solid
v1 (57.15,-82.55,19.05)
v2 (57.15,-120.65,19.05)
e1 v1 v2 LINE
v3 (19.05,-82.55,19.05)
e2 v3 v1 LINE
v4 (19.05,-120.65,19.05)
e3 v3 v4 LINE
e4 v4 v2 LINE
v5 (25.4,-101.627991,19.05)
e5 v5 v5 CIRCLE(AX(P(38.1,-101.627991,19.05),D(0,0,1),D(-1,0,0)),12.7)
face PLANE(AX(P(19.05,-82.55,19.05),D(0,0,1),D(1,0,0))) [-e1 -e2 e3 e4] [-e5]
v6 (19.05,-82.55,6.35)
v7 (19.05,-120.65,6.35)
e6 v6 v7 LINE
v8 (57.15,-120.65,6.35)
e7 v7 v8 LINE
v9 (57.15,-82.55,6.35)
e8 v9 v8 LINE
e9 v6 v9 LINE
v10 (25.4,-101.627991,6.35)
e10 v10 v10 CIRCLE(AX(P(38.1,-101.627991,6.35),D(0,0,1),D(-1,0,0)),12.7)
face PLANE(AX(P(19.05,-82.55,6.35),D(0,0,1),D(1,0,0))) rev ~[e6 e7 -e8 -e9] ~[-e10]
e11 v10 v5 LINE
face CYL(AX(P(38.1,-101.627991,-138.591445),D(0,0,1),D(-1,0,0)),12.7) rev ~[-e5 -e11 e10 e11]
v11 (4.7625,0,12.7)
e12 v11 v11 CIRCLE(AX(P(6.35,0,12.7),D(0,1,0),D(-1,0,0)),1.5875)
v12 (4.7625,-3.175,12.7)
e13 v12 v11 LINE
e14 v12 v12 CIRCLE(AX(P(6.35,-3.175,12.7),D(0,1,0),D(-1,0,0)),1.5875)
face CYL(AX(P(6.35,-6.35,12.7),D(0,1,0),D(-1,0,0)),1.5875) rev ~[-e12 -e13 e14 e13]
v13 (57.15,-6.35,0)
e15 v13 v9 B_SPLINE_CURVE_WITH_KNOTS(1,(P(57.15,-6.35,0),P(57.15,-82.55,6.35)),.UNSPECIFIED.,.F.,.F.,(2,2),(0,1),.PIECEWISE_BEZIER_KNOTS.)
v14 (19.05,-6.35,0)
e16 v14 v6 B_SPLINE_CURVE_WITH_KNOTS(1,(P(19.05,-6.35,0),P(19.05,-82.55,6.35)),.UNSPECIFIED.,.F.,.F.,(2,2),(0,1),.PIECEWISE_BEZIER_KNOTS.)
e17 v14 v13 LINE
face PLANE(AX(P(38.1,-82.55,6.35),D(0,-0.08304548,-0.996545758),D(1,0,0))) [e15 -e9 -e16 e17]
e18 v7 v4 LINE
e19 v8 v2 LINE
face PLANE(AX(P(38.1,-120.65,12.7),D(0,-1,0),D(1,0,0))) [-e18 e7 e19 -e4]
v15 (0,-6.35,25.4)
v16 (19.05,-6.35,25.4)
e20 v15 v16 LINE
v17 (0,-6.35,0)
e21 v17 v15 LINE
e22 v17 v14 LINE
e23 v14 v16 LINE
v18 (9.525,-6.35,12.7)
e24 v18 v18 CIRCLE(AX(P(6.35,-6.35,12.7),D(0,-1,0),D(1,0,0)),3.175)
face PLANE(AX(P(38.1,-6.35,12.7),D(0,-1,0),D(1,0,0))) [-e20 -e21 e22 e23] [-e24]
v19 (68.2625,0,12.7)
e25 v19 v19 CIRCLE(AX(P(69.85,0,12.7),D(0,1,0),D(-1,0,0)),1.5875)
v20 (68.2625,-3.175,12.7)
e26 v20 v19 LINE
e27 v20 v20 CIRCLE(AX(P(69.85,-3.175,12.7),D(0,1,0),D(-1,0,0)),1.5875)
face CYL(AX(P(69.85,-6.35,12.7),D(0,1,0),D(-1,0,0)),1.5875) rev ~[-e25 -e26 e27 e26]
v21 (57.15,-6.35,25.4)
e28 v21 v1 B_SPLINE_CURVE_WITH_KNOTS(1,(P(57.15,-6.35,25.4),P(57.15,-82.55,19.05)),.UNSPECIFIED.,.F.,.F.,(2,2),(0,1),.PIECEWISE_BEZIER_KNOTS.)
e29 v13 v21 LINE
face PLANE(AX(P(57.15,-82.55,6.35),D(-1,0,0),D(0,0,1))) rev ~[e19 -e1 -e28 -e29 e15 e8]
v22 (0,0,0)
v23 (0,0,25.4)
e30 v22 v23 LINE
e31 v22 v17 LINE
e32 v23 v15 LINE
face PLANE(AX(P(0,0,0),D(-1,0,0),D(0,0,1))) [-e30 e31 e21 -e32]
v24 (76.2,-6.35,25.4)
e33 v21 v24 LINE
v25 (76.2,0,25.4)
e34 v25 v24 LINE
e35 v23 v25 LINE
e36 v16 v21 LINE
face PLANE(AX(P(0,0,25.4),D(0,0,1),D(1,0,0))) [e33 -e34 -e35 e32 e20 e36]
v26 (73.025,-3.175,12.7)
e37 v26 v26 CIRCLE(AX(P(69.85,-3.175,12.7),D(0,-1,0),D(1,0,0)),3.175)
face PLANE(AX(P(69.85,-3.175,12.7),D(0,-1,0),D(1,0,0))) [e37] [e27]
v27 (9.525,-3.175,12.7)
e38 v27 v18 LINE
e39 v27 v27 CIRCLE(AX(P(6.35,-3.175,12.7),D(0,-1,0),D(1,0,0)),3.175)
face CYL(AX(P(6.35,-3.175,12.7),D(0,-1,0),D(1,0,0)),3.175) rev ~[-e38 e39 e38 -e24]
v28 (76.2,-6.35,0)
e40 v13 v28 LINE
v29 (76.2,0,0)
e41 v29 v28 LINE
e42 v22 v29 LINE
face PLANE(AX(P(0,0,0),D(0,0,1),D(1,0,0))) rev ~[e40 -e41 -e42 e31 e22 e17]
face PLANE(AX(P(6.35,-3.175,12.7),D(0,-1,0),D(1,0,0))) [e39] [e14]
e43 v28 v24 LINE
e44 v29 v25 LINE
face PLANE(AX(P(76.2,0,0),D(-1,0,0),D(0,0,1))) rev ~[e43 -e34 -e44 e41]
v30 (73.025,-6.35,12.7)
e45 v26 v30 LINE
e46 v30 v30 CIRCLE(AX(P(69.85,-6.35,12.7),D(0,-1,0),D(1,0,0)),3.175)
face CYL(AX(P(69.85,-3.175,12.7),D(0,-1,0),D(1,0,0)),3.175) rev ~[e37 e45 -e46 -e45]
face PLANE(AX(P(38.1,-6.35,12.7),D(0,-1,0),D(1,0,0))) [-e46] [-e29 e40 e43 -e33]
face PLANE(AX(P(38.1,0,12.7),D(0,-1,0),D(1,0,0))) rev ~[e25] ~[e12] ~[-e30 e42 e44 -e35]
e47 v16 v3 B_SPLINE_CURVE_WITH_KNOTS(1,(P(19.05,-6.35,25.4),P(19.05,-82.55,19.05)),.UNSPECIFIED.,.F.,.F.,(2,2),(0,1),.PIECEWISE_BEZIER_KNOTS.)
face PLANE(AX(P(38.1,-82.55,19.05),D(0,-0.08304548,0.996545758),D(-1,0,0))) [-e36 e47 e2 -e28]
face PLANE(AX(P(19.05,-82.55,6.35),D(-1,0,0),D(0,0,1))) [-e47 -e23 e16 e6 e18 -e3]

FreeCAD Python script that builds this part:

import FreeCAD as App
import Part
import Sketcher
Q = App.Units.Quantity

doc = App.newDocument("Part")
body = doc.addObject("PartDesign::Body", "Body")

# Sketch on XZ plane
sketch1 = body.newObject("Sketcher::SketchObject", "Sketch")
sketch1.AttachmentSupport = (doc.getObject("XZ_Plane"), [""])
sketch1.MapMode = "FlatFace"
sketch1.addGeometry(Part.LineSegment(App.Vector(0, 25, 0), App.Vector(0, 0, 0)), False)
sketch1.addGeometry(Part.LineSegment(App.Vector(0, 0, 0), App.Vector(76, 0, 0)), False)
sketch1.addGeometry(Part.LineSegment(App.Vector(76, 0, 0), App.Vector(76, 25, 0)), False)
sketch1.addGeometry(Part.LineSegment(App.Vector(76, 25, 0), App.Vector(0, 25, 0)), False)
sketch1.addConstraint(Sketcher.Constraint("Coincident", 0, 2, 1, 1))
sketch1.addConstraint(Sketcher.Constraint("Coincident", 1, 2, 2, 1))
sketch1.addConstraint(Sketcher.Constraint("Coincident", 2, 2, 3, 1))
sketch1.addConstraint(Sketcher.Constraint("Coincident", 3, 2, 0, 1))
sketch1.addConstraint(Sketcher.Constraint("Vertical", 0))
sketch1.addConstraint(Sketcher.Constraint("Horizontal", 1))
sketch1.addConstraint(Sketcher.Constraint("Vertical", 2))
sketch1.addConstraint(Sketcher.Constraint("Horizontal", 3))
sketch1.addConstraint(Sketcher.Constraint("Coincident", 0, 2, -1, 1))
sketch1.addConstraint(Sketcher.Constraint("DistanceX", 1, 1, 1, 2, Q("3 in")))
sketch1.addConstraint(Sketcher.Constraint("DistanceY", 0, 2, 0, 1, Q("1 in")))
pad1 = body.newObject("PartDesign::Pad", "Pad")
pad1.Profile = sketch1
pad1.Length = Q("0.25 in")

# Sketch on XZ plane
sketch2 = body.newObject("Sketcher::SketchObject", "Sketch001")
sketch2.AttachmentSupport = (doc.getObject("XZ_Plane"), [""])
sketch2.MapMode = "FlatFace"
sketch2.AttachmentOffset = App.Placement(App.Vector(0, 0, 0.25 * 25.4), App.Rotation())
sketch2.addGeometry(Part.Circle(App.Vector(6.3, 12.7, 0), App.Vector(0, 0, 1), 1.6), False)
sketch2.addGeometry(Part.Circle(App.Vector(69.8, 12.7, 0), App.Vector(0, 0, 1), 1.6), False)
sketch2.addConstraint(Sketcher.Constraint("Equal", 0, 1))
sketch2.addConstraint(Sketcher.Constraint("Horizontal", 0, 3, 1, 3))
sketch2.addConstraint(Sketcher.Constraint("Diameter", 0, Q("0.125 in")))
sketch2.addConstraint(Sketcher.Constraint("DistanceY", -1, 1, 0, 3, Q("0.5 in")))
sketch2.addConstraint(Sketcher.Constraint("DistanceX", 0, 3, 1, 3, Q("2.5 in")))
sketch2.addConstraint(Sketcher.Constraint("DistanceX", -1, 1, 0, 3, Q("0.25 in")))
doc.recompute()
hole = body.newObject("PartDesign::Hole", "Hole")
hole.Profile = sketch2
hole.ThreadType = "None"
hole.Diameter = Q("0.125 in")
hole.DepthType = "ThroughAll"
hole.HoleCutType = "Counterbore"
hole.HoleCutDiameter = Q("0.25 in")
hole.HoleCutDepth = Q("0.125 in")

# Sketch on XZ plane
sketch3 = body.newObject("Sketcher::SketchObject", "Sketch002")
sketch3.AttachmentSupport = (doc.getObject("XZ_Plane"), [""])
sketch3.MapMode = "FlatFace"
sketch3.AttachmentOffset = App.Placement(App.Vector(0, 0, 0.25 * 25.4), App.Rotation())
sketch3.addGeometry(Part.LineSegment(App.Vector(19, 25, 0), App.Vector(19, 0, 0)), False)
sketch3.addGeometry(Part.LineSegment(App.Vector(19, 0, 0), App.Vector(57, 0, 0)), False)
sketch3.addGeometry(Part.LineSegment(App.Vector(57, 0, 0), App.Vector(57, 25, 0)), False)
sketch3.addGeometry(Part.LineSegment(App.Vector(57, 25, 0), App.Vector(19, 25, 0)), False)
sketch3.addConstraint(Sketcher.Constraint("Coincident", 0, 2, 1, 1))
sketch3.addConstraint(Sketcher.Constraint("Coincident", 1, 2, 2, 1))
sketch3.addConstraint(Sketcher.Constraint("Coincident", 2, 2, 3, 1))
sketch3.addConstraint(Sketcher.Constraint("Coincident", 3, 2, 0, 1))
sketch3.addConstraint(Sketcher.Constraint("Vertical", 0))
sketch3.addConstraint(Sketcher.Constraint("Horizontal", 1))
sketch3.addConstraint(Sketcher.Constraint("Vertical", 2))
sketch3.addConstraint(Sketcher.Constraint("Horizontal", 3))
sketch3.addConstraint(Sketcher.Constraint("PointOnObject", 0, 2, -1))
sketch3.addConstraint(Sketcher.Constraint("DistanceY", 0, 2, 0, 1, Q("1 in")))
sketch3.addConstraint(Sketcher.Constraint("DistanceX", 1, 1, 1, 2, Q("1.5 in")))
sketch3.addConstraint(Sketcher.Constraint("DistanceX", -1, 1, 0, 2, Q("0.75 in")))

# Sketch on XZ plane
sketch4 = body.newObject("Sketcher::SketchObject", "Sketch003")
sketch4.AttachmentSupport = (doc.getObject("XZ_Plane"), [""])
sketch4.MapMode = "FlatFace"
sketch4.AttachmentOffset = App.Placement(App.Vector(0, 0, 3.25 * 25.4), App.Rotation())
sketch4.addGeometry(Part.LineSegment(App.Vector(19, 19, 0), App.Vector(19, 6, 0)), False)
sketch4.addGeometry(Part.LineSegment(App.Vector(19, 6, 0), App.Vector(57, 6, 0)), False)
sketch4.addGeometry(Part.LineSegment(App.Vector(57, 6, 0), App.Vector(57, 19, 0)), False)
sketch4.addGeometry(Part.LineSegment(App.Vector(57, 19, 0), App.Vector(19, 19, 0)), False)
sketch4.addConstraint(Sketcher.Constraint("Coincident", 0, 2, 1, 1))
sketch4.addConstraint(Sketcher.Constraint("Coincident", 1, 2, 2, 1))
sketch4.addConstraint(Sketcher.Constraint("Coincident", 2, 2, 3, 1))
sketch4.addConstraint(Sketcher.Constraint("Coincident", 3, 2, 0, 1))
sketch4.addConstraint(Sketcher.Constraint("Vertical", 0))
sketch4.addConstraint(Sketcher.Constraint("Horizontal", 1))
sketch4.addConstraint(Sketcher.Constraint("Vertical", 2))
sketch4.addConstraint(Sketcher.Constraint("Horizontal", 3))
sketch4.addConstraint(Sketcher.Constraint("DistanceX", 1, 1, 1, 2, Q("1.5 in")))
sketch4.addConstraint(Sketcher.Constraint("DistanceY", 0, 2, 0, 1, Q("0.5 in")))
sketch4.addConstraint(Sketcher.Constraint("DistanceX", -1, 1, 0, 2, Q("0.75 in")))
sketch4.addConstraint(Sketcher.Constraint("DistanceY", -1, 1, 0, 2, Q("0.25 in")))

additiveloft = body.newObject("PartDesign::AdditiveLoft", "AdditiveLoft")
additiveloft.Profile = sketch3
additiveloft.Sections = [sketch4]

# Sketch on XZ plane
sketch5 = body.newObject("Sketcher::SketchObject", "Sketch004")
sketch5.AttachmentSupport = (doc.getObject("XZ_Plane"), [""])
sketch5.MapMode = "FlatFace"
sketch5.AttachmentOffset = App.Placement(App.Vector(0, 0, 3.25 * 25.4), App.Rotation())
sketch5.addGeometry(Part.LineSegment(App.Vector(19, 19, 0), App.Vector(19, 6, 0)), False)
sketch5.addGeometry(Part.LineSegment(App.Vector(19, 6, 0), App.Vector(57, 6, 0)), False)
sketch5.addGeometry(Part.LineSegment(App.Vector(57, 6, 0), App.Vector(57, 19, 0)), False)
sketch5.addGeometry(Part.LineSegment(App.Vector(57, 19, 0), App.Vector(19, 19, 0)), False)
sketch5.addConstraint(Sketcher.Constraint("Coincident", 0, 2, 1, 1))
sketch5.addConstraint(Sketcher.Constraint("Coincident", 1, 2, 2, 1))
sketch5.addConstraint(Sketcher.Constraint("Coincident", 2, 2, 3, 1))
sketch5.addConstraint(Sketcher.Constraint("Coincident", 3, 2, 0, 1))
sketch5.addConstraint(Sketcher.Constraint("Vertical", 0))
sketch5.addConstraint(Sketcher.Constraint("Horizontal", 1))
sketch5.addConstraint(Sketcher.Constraint("Vertical", 2))
sketch5.addConstraint(Sketcher.Constraint("Horizontal", 3))
sketch5.addConstraint(Sketcher.Constraint("DistanceX", 1, 1, 1, 2, Q("1.5 in")))
sketch5.addConstraint(Sketcher.Constraint("DistanceY", 0, 2, 0, 1, Q("0.5 in")))
sketch5.addConstraint(Sketcher.Constraint("DistanceX", -1, 1, 0, 2, Q("0.75 in")))
sketch5.addConstraint(Sketcher.Constraint("DistanceY", -1, 1, 0, 2, Q("0.25 in")))
pad2 = body.newObject("PartDesign::Pad", "Pad001")
pad2.Profile = sketch5
pad2.Length = Q("1.5 in")

# Sketch on XY plane
sketch6 = body.newObject("Sketcher::SketchObject", "Sketch005")
sketch6.AttachmentSupport = (doc.getObject("XY_Plane"), [""])
sketch6.MapMode = "FlatFace"
sketch6.AttachmentOffset = App.Placement(App.Vector(0, 0, 0.25 * 25.4), App.Rotation())
sketch6.addGeometry(Part.Circle(App.Vector(38, -102, 0), App.Vector(0, 0, 1), 13), False)
sketch6.addConstraint(Sketcher.Constraint("Diameter", 0, Q("1 in")))
sketch6.addConstraint(Sketcher.Constraint("DistanceX", -1, 1, 0, 3, Q("1.5 in")))
sketch6.addConstraint(Sketcher.Constraint("DistanceY", 0, 3, -1, 1, Q("101.627991 mm")))
doc.recompute()
hole2 = body.newObject("PartDesign::Hole", "Hole001")
hole2.Profile = sketch6
hole2.ThreadType = "None"
hole2.Diameter = Q("1 in")
hole2.DepthType = "ThroughAll"
hole2.Reversed = True

doc.recompute()
